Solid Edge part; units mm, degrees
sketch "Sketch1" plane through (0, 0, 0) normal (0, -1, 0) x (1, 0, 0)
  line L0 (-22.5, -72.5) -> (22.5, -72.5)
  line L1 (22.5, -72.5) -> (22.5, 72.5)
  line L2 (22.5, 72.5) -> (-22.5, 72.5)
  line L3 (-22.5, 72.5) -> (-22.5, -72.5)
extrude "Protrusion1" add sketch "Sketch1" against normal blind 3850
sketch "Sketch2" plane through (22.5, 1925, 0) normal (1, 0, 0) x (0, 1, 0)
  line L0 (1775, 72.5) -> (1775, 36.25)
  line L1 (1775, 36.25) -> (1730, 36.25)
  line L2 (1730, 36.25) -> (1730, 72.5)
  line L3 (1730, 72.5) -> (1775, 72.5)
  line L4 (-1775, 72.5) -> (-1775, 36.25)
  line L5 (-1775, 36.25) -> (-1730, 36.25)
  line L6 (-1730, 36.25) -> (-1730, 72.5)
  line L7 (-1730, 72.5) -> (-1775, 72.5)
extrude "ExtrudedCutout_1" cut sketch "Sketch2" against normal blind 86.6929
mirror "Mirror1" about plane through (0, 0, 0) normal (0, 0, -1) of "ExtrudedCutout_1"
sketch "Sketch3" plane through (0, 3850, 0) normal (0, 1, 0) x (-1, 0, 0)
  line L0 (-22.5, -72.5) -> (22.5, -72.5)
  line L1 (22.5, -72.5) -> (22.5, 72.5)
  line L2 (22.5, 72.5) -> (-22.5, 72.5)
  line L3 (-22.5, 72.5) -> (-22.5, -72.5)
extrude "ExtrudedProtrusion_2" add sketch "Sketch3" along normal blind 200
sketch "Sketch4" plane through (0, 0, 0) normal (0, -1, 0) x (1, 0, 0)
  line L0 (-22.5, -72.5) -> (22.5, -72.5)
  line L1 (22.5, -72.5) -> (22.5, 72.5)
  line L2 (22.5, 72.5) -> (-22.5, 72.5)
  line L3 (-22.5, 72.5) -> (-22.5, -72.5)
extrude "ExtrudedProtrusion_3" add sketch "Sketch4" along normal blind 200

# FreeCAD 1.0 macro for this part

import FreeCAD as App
import Part
import Sketcher
from FreeCAD import Vector


def add_polygon(sketch, points):
    """Adds a closed chain of lines whose ends are joined by coincident constraints."""
    first, n = sketch.GeometryCount, len(points)
    for a, b in zip(points, points[1:] + points[:1]):
        sketch.addGeometry(Part.LineSegment(App.Vector(*a, 0), App.Vector(*b, 0)), False)
    for i in range(n):
        sketch.addConstraint(Sketcher.Constraint("Coincident", first + i, 2, first + (i + 1) % n, 1))

doc = App.newDocument("Part")
body = doc.addObject("PartDesign::Body", "Body")

# Sketch on XZ plane
sketch1 = doc.addObject("Sketcher::SketchObject", "Sketch")
body.addObject(sketch1)
sketch1.AttachmentSupport = (doc.XZ_Plane, [""])
sketch1.MapMode = "FlatFace"
add_polygon(sketch1, [(-22.5, 72.5), (-22.5, -72.5), (22.5, -72.5), (22.5, 72.5)])  # lines 0-3
sketch1.addConstraint([
    Sketcher.Constraint("Vertical", 0),
    Sketcher.Constraint("Horizontal", 1),
    Sketcher.Constraint("Vertical", 2),
    Sketcher.Constraint("Horizontal", 3),
    Sketcher.Constraint("Symmetric", 0, 2, 2, 2, -1, 1),
    Sketcher.Constraint("DistanceX", 1, 1, 1, 2, 45.0),
    Sketcher.Constraint("DistanceY", 0, 2, 0, 1, 145.0),
])
pad1 = doc.addObject("PartDesign::Pad", "Pad")
body.addObject(pad1)
pad1.Profile = sketch1
pad1.Length = 3850
pad1.Reversed = True

# Sketch on YZ plane
sketch2 = doc.addObject("Sketcher::SketchObject", "Sketch001")
body.addObject(sketch2)
sketch2.AttachmentSupport = (doc.YZ_Plane, [""])
sketch2.MapMode = "FlatFace"
sketch2.AttachmentOffset = App.Placement(Vector(0, 0, 22.5), App.Rotation())
add_polygon(sketch2, [(3700, 36.25), (3700, 72.5), (3655, 72.5), (3655, 36.25)])  # lines 0-3
add_polygon(sketch2, [(195, 72.5), (150, 72.5), (150, 36.25), (195, 36.25)])  # lines 4-7
sketch2.addConstraint([
    Sketcher.Constraint("Vertical", 0),
    Sketcher.Constraint("Horizontal", 1),
    Sketcher.Constraint("Vertical", 2),
    Sketcher.Constraint("Horizontal", 3),
    Sketcher.Constraint("Horizontal", 4),
    Sketcher.Constraint("Vertical", 5),
    Sketcher.Constraint("Horizontal", 6),
    Sketcher.Constraint("Vertical", 7),
    Sketcher.Constraint("Horizontal", 1, 2, 4, 2),
    Sketcher.Constraint("Horizontal", 3, 2, 5, 2),
    Sketcher.Constraint("Equal", 3, 4),
    Sketcher.Constraint("DistanceX", 1, 2, 1, 1, 45.0),
    Sketcher.Constraint("DistanceX", -1, 1, 0, 2, 3700.0),
    Sketcher.Constraint("DistanceX", -1, 1, 4, 2, 150.0),
    Sketcher.Constraint("DistanceY", 0, 1, 0, 2, 36.25),
    Sketcher.Constraint("DistanceY", -1, 1, 0, 2, 72.5),
])
pocket1 = doc.addObject("PartDesign::Pocket", "Pocket")
body.addObject(pocket1)
pocket1.Profile = sketch2
pocket1.Length = 86.6929
doc.recompute()

mirrored = doc.addObject("PartDesign::Mirrored", "Mirrored")
body.addObject(mirrored)
mirrored.Originals = [pocket1]
mirrored.MirrorPlane = (doc.XY_Plane, [""])
body.Tip = mirrored

# Sketch on XZ plane
sketch3 = doc.addObject("Sketcher::SketchObject", "Sketch002")
body.addObject(sketch3)
sketch3.AttachmentSupport = (doc.XZ_Plane, [""])
sketch3.MapMode = "FlatFace"
sketch3.AttachmentOffset = App.Placement(Vector(0, 0, -3850), App.Rotation())
add_polygon(sketch3, [(22.5, 72.5), (22.5, -72.5), (-22.5, -72.5), (-22.5, 72.5)])  # lines 0-3
sketch3.addConstraint([
    Sketcher.Constraint("Vertical", 0),
    Sketcher.Constraint("Horizontal", 1),
    Sketcher.Constraint("Vertical", 2),
    Sketcher.Constraint("Horizontal", 3),
    Sketcher.Constraint("Symmetric", 0, 2, 2, 2, -1, 1),
    Sketcher.Constraint("DistanceX", 1, 2, 1, 1, 45.0),
    Sketcher.Constraint("DistanceY", 0, 2, 0, 1, 145.0),
])
pad2 = doc.addObject("PartDesign::Pad", "Pad001")
body.addObject(pad2)
pad2.Profile = sketch3
pad2.Length = 200
pad2.Reversed = True

# Sketch on XZ plane
sketch4 = doc.addObject("Sketcher::SketchObject", "Sketch003")
body.addObject(sketch4)
sketch4.AttachmentSupport = (doc.XZ_Plane, [""])
sketch4.MapMode = "FlatFace"
add_polygon(sketch4, [(-22.5, 72.5), (-22.5, -72.5), (22.5, -72.5), (22.5, 72.5)])  # lines 0-3
sketch4.addConstraint([
    Sketcher.Constraint("Vertical", 0),
    Sketcher.Constraint("Horizontal", 1),
    Sketcher.Constraint("Vertical", 2),
    Sketcher.Constraint("Horizontal", 3),
    Sketcher.Constraint("Symmetric", 0, 2, 2, 2, -1, 1),
    Sketcher.Constraint("DistanceX", 1, 1, 1, 2, 45.0),
    Sketcher.Constraint("DistanceY", 0, 2, 0, 1, 145.0),
])
pad3 = doc.addObject("PartDesign::Pad", "Pad002")
body.addObject(pad3)
pad3.Profile = sketch4
pad3.Length = 200

doc.recompute()
